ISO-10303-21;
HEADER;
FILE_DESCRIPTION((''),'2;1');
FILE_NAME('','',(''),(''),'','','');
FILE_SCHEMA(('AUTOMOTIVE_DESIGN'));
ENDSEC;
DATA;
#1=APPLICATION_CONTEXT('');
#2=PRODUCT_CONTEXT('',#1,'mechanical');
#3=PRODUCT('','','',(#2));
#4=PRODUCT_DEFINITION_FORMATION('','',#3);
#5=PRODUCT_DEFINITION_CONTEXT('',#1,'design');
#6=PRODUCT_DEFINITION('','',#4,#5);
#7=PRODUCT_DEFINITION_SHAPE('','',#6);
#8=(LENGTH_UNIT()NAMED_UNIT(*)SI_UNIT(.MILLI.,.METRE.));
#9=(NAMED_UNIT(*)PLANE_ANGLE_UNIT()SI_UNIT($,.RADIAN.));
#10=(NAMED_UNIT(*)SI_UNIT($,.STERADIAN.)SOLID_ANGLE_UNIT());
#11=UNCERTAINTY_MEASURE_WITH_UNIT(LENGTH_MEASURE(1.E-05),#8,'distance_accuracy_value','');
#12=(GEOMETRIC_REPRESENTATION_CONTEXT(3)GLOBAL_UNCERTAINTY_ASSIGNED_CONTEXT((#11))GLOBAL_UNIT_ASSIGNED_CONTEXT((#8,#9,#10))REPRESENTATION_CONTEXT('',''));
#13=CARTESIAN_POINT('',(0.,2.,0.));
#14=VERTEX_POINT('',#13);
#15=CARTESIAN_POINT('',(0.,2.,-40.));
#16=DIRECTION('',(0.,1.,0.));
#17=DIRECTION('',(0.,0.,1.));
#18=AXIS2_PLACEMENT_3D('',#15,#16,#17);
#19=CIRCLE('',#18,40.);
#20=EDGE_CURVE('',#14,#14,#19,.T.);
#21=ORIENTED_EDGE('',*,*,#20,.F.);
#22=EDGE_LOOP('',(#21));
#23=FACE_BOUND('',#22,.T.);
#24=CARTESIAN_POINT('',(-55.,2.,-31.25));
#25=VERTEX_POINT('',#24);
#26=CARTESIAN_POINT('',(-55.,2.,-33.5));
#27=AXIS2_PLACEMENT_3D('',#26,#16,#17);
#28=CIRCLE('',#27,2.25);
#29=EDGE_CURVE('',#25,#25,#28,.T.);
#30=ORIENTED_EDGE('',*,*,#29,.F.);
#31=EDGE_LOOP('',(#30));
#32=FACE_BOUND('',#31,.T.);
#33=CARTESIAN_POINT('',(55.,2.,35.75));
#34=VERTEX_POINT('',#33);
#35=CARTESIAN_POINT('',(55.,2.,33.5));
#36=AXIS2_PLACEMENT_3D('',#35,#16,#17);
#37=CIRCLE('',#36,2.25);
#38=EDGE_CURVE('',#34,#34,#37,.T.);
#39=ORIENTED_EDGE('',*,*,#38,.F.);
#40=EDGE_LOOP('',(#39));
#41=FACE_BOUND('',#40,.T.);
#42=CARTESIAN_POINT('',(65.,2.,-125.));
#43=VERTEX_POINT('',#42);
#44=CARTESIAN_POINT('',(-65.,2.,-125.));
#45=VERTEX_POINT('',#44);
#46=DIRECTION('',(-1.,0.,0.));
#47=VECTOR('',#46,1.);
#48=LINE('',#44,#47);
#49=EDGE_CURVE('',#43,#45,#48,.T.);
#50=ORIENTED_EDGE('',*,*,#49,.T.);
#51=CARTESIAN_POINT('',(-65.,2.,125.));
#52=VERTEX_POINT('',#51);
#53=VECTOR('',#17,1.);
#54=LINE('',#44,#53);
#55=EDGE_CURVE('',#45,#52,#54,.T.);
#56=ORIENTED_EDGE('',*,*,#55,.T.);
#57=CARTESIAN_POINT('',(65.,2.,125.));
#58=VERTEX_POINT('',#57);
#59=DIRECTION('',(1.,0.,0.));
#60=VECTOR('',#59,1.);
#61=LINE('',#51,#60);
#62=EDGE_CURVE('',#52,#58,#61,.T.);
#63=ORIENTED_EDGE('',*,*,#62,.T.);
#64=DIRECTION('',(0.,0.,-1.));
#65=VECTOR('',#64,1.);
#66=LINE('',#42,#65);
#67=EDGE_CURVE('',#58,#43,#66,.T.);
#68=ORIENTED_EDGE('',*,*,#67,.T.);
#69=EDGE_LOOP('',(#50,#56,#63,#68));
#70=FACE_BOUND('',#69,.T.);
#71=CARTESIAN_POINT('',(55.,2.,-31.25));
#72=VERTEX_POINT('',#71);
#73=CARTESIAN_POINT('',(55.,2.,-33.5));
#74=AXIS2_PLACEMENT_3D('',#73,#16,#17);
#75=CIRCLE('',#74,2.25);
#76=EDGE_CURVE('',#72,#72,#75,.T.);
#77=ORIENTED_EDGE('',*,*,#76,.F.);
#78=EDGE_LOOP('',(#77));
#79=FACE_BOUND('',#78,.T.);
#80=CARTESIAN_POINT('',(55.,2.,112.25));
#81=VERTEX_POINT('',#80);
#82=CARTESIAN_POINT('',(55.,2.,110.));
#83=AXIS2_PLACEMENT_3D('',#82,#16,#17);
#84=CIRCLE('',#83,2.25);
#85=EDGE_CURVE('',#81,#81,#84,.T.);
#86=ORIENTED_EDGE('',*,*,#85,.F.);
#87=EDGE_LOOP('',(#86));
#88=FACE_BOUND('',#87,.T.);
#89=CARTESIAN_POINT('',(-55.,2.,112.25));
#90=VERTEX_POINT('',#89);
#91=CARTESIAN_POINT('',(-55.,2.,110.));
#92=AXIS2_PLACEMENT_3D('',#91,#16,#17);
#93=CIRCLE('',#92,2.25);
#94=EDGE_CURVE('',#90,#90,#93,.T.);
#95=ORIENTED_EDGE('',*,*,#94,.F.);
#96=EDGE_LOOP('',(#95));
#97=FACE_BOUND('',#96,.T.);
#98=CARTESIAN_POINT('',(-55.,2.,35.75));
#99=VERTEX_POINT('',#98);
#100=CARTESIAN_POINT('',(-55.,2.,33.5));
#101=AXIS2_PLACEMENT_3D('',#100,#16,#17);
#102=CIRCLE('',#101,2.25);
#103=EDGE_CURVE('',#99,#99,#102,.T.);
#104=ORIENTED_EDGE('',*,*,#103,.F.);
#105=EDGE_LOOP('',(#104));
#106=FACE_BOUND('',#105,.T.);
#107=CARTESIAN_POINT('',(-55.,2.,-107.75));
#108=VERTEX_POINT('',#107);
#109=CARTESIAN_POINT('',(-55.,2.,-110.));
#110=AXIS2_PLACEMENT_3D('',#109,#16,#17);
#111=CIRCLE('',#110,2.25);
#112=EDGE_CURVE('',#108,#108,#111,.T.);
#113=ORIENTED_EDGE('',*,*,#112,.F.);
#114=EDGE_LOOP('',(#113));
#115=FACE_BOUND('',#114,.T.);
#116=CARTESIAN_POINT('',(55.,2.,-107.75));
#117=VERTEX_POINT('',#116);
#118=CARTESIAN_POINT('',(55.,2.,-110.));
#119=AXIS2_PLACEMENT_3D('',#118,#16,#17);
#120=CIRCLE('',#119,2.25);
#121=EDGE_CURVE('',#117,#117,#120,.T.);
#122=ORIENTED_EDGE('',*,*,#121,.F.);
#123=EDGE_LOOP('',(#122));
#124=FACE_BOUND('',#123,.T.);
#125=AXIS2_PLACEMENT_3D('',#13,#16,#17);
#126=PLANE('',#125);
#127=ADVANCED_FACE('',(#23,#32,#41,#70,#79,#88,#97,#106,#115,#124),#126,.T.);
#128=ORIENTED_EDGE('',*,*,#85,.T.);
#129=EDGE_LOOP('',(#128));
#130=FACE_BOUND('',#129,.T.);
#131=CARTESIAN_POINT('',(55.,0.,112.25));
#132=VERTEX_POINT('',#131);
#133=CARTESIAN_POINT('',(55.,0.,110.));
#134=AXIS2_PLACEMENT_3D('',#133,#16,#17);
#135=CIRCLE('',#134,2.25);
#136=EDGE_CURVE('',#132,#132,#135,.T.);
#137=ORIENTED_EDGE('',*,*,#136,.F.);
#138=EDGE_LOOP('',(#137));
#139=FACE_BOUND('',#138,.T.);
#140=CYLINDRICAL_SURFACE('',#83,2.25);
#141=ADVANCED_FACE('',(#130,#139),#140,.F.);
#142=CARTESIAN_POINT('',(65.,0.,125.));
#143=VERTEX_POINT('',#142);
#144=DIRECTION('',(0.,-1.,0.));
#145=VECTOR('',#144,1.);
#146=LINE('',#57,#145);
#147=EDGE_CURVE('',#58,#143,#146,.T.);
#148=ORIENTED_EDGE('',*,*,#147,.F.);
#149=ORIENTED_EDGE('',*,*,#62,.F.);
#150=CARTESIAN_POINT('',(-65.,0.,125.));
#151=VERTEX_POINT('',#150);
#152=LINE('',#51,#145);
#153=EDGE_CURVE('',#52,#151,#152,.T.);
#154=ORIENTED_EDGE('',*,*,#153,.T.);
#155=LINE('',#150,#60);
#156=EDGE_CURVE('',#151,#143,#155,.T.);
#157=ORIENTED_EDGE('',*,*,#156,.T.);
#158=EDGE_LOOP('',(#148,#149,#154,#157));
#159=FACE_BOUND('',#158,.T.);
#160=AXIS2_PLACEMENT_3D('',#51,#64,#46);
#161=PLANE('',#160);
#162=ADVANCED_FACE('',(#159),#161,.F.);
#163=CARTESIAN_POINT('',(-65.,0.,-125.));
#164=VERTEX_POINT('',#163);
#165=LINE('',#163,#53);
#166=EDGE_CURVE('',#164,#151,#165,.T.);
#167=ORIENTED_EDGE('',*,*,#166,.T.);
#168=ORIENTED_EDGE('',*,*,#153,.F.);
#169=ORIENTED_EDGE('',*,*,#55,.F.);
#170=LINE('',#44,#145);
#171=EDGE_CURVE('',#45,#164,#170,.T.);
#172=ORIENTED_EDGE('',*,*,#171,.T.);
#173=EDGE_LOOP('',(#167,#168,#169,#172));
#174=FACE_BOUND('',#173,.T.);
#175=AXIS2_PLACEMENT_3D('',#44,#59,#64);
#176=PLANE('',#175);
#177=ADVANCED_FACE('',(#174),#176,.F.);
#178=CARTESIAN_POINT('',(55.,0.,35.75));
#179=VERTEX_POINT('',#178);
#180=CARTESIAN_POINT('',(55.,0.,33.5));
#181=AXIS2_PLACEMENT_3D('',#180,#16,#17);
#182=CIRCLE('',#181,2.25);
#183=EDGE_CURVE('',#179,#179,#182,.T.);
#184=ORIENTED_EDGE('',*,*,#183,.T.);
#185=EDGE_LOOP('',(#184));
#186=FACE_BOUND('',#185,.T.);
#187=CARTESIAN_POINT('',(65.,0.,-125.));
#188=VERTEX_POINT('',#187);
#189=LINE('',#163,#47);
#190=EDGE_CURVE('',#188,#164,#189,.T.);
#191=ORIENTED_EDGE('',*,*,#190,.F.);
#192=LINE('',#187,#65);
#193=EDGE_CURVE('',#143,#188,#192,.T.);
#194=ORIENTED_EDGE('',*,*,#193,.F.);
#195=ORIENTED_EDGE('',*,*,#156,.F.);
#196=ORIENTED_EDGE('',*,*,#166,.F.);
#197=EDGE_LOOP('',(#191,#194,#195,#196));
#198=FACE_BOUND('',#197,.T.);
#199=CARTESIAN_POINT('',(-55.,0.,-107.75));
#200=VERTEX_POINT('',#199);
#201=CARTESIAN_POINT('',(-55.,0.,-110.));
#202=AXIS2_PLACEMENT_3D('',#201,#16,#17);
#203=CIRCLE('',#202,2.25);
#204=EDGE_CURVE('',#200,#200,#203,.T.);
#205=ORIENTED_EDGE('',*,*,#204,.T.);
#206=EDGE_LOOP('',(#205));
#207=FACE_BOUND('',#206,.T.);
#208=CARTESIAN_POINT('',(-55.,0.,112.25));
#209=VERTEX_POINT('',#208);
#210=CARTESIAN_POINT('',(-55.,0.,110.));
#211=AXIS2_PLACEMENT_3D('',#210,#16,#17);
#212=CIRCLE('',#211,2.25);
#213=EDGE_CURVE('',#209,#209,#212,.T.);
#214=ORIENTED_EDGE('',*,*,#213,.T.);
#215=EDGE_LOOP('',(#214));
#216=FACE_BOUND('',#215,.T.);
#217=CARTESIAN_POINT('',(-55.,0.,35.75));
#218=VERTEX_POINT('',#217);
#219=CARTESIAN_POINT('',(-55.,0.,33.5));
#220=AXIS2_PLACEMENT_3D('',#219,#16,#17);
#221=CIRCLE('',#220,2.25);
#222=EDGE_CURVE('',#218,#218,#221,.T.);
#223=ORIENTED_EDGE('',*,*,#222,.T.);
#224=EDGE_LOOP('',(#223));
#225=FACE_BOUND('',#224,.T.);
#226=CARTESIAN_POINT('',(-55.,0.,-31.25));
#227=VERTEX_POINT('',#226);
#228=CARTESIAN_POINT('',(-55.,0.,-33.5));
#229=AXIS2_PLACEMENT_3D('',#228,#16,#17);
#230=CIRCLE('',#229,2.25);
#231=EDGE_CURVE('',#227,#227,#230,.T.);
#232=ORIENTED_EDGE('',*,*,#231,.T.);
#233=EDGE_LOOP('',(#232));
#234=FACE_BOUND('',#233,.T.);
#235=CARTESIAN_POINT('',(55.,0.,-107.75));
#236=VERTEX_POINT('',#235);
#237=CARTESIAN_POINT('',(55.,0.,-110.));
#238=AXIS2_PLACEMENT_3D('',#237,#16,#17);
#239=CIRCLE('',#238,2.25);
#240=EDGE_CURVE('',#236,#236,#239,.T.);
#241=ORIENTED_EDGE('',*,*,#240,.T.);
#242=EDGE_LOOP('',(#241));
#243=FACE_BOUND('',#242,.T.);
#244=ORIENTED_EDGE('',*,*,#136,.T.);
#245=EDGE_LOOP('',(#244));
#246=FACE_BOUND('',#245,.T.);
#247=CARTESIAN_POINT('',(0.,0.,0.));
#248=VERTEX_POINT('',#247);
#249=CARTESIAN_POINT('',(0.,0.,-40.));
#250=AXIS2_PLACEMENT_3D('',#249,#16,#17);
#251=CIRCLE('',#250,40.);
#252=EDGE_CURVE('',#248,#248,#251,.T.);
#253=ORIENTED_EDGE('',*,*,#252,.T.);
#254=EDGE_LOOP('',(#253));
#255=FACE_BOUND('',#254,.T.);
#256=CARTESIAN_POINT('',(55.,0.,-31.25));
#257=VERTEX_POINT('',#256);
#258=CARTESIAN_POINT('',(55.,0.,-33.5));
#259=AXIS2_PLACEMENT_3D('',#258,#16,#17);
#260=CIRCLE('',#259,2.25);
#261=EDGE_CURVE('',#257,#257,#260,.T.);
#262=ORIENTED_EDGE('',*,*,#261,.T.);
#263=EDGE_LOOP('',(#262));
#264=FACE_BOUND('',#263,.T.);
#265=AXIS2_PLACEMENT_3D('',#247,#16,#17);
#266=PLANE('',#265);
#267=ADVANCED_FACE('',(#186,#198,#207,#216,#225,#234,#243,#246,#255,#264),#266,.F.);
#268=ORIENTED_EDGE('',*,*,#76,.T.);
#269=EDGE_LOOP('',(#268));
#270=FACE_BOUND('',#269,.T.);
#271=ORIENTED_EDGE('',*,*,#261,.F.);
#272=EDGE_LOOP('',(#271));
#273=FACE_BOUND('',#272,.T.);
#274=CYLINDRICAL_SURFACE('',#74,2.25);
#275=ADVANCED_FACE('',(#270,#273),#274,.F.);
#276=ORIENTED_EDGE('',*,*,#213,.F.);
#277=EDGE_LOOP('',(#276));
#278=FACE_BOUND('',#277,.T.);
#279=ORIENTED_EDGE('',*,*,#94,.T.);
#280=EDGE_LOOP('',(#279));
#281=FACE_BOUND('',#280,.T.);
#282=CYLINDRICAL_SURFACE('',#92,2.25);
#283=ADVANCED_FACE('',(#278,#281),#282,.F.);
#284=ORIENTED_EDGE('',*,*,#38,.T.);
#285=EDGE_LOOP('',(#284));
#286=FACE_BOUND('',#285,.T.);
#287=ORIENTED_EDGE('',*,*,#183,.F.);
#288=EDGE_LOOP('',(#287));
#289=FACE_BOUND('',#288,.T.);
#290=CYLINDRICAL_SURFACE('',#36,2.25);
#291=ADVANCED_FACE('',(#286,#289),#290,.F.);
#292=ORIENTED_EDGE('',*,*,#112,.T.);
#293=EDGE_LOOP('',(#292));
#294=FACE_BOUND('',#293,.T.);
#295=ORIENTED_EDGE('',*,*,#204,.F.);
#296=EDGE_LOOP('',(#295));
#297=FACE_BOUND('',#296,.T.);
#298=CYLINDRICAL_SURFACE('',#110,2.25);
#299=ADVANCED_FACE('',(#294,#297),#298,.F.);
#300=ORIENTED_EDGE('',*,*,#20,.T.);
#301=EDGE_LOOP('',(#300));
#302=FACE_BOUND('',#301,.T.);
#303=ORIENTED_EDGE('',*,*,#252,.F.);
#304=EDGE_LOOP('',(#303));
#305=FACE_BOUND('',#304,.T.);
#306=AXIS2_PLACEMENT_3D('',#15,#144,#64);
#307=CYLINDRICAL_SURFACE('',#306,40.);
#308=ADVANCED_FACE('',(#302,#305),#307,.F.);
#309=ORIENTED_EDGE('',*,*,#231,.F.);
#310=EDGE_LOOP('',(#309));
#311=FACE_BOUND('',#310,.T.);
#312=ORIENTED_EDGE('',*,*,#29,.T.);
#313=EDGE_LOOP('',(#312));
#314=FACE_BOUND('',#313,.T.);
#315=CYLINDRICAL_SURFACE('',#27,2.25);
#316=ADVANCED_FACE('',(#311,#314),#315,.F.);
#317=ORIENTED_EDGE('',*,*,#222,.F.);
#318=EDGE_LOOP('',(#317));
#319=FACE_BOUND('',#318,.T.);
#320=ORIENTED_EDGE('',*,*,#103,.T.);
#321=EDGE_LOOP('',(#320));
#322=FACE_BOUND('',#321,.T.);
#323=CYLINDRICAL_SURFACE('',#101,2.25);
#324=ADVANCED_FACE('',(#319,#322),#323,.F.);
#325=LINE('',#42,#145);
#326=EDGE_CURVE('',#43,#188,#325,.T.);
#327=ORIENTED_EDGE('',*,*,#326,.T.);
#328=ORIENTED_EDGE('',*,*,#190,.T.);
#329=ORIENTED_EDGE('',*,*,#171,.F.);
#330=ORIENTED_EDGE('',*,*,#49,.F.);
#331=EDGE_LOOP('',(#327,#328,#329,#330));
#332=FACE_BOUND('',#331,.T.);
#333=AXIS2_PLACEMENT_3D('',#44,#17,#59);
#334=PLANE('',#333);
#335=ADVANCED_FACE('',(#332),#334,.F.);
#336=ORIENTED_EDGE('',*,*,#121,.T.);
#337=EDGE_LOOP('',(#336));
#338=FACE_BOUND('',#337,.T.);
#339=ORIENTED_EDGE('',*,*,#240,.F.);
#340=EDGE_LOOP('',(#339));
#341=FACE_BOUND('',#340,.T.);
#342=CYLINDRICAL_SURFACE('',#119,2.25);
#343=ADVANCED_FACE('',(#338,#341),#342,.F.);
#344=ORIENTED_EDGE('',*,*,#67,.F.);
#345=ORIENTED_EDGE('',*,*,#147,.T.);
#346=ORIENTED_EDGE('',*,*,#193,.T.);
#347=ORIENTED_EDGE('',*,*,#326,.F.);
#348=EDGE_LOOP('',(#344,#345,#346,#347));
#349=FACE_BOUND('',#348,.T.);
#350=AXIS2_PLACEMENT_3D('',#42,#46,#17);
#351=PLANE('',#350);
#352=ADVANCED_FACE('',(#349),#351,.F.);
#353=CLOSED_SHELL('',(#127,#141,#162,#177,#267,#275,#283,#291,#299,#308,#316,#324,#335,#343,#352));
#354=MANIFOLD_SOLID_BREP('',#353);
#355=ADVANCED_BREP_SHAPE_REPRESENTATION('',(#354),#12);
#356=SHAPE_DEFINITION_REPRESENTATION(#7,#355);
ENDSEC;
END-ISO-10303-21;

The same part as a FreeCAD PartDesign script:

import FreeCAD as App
import Part
import Sketcher

V = App.Vector


def add_polygon(sketch, points):
    """Adds a closed chain of lines whose ends are joined by coincident constraints."""
    first, n = sketch.GeometryCount, len(points)
    for a, b in zip(points, points[1:] + points[:1]):
        sketch.addGeometry(Part.LineSegment(App.Vector(*a, 0), App.Vector(*b, 0)), False)
    for i in range(n):
        sketch.addConstraint(Sketcher.Constraint("Coincident", first + i, 2, first + (i + 1) % n, 1))

doc = App.newDocument("Part")
body = doc.addObject("PartDesign::Body", "Body")

sketch1 = body.newObject("Sketcher::SketchObject", "Sketch")
sketch1.AttachmentSupport = (doc.getObject("XZ_Plane"), [""])
sketch1.MapMode = "FlatFace"
add_polygon(sketch1, [(-65, -125), (-65, 125), (65, 125), (65, -125)])
sketch1.addGeometry(Part.Circle(V(0, -40, 0), V(0, 0, 1), 40), False)
sketch1.addConstraint([
    Sketcher.Constraint("Vertical", 0),
    Sketcher.Constraint("Horizontal", 1),
    Sketcher.Constraint("Vertical", 2),
    Sketcher.Constraint("Horizontal", 3),
    Sketcher.Constraint("Symmetric", 0, 2, 2, 2, -1, 1),
    Sketcher.Constraint("PointOnObject", 4, 3, -2),
    Sketcher.Constraint("Diameter", 4, 80.0),
    Sketcher.Constraint("DistanceX", 1, 1, 1, 2, 130.0),
    Sketcher.Constraint("DistanceY", 0, 1, 0, 2, 250.0),
    Sketcher.Constraint("DistanceY", 4, 3, -1, 1, 40.0),
])
pad1 = body.newObject("PartDesign::Pad", "Pad")
pad1.Profile = sketch1
pad1.Length = 2
pad1.Reversed = True

sketch2 = body.newObject("Sketcher::SketchObject", "Sketch001")
sketch2.AttachmentSupport = (doc.getObject("XZ_Plane"), [""])
sketch2.MapMode = "FlatFace"
sketch2.AttachmentOffset = App.Placement(V(0, 0, -2), App.Rotation())
sketch2.addGeometry([
    Part.Circle(V(-55, 110, 0), V(0, 0, 1), 2.2),
    Part.Circle(V(-55, 33.5, 0), V(0, 0, 1), 2.2),
], False)
sketch2.addConstraint([
    Sketcher.Constraint("Equal", 0, 1),
    Sketcher.Constraint("Vertical", 0, 3, 1, 3),
    Sketcher.Constraint("Diameter", 0, 4.5),
    Sketcher.Constraint("DistanceX", 0, 3, -1, 1, 55.0),
    Sketcher.Constraint("DistanceY", -1, 1, 0, 3, 110.0),
    Sketcher.Constraint("DistanceY", -1, 1, 1, 3, 33.5),
])
doc.recompute()
hole = body.newObject("PartDesign::Hole", "Hole")
hole.Profile = sketch2
hole.ThreadType = "None"
hole.Diameter = 4.5
hole.DepthType = "ThroughAll"
hole.Reversed = True
doc.recompute()

mirrored = body.newObject("PartDesign::Mirrored", "Mirrored")
mirrored.Originals = [hole]
mirrored.MirrorPlane = (doc.getObject("XY_Plane"), [""])
body.Tip = mirrored
doc.recompute()

mirrored2 = body.newObject("PartDesign::Mirrored", "Mirrored001")
mirrored2.Originals = [hole]
mirrored2.MirrorPlane = (doc.getObject("YZ_Plane"), [""])
body.Tip = mirrored2

sketch3 = body.newObject("Sketcher::SketchObject", "Sketch002")
sketch3.AttachmentSupport = (doc.getObject("XZ_Plane"), [""])
sketch3.MapMode = "FlatFace"
sketch3.AttachmentOffset = App.Placement(V(0, 0, -2), App.Rotation())
sketch3.addGeometry([
    Part.Circle(V(55, -110, 0), V(0, 0, 1), 2.2),
    Part.Circle(V(55, -33.5, 0), V(0, 0, 1), 2.2),
], False)
sketch3.addConstraint([
    Sketcher.Constraint("Equal", 0, 1),
    Sketcher.Constraint("Vertical", 0, 3, 1, 3),
    Sketcher.Constraint("Diameter", 0, 4.5),
    Sketcher.Constraint("DistanceX", -1, 1, 0, 3, 55.0),
    Sketcher.Constraint("DistanceY", 0, 3, -1, 1, 110.0),
    Sketcher.Constraint("DistanceY", 1, 3, -1, 1, 33.5),
])
doc.recompute()
hole2 = body.newObject("PartDesign::Hole", "Hole001")
hole2.Profile = sketch3
hole2.ThreadType = "None"
hole2.Diameter = 4.5
hole2.DepthType = "ThroughAll"
hole2.Reversed = True

doc.recompute()
